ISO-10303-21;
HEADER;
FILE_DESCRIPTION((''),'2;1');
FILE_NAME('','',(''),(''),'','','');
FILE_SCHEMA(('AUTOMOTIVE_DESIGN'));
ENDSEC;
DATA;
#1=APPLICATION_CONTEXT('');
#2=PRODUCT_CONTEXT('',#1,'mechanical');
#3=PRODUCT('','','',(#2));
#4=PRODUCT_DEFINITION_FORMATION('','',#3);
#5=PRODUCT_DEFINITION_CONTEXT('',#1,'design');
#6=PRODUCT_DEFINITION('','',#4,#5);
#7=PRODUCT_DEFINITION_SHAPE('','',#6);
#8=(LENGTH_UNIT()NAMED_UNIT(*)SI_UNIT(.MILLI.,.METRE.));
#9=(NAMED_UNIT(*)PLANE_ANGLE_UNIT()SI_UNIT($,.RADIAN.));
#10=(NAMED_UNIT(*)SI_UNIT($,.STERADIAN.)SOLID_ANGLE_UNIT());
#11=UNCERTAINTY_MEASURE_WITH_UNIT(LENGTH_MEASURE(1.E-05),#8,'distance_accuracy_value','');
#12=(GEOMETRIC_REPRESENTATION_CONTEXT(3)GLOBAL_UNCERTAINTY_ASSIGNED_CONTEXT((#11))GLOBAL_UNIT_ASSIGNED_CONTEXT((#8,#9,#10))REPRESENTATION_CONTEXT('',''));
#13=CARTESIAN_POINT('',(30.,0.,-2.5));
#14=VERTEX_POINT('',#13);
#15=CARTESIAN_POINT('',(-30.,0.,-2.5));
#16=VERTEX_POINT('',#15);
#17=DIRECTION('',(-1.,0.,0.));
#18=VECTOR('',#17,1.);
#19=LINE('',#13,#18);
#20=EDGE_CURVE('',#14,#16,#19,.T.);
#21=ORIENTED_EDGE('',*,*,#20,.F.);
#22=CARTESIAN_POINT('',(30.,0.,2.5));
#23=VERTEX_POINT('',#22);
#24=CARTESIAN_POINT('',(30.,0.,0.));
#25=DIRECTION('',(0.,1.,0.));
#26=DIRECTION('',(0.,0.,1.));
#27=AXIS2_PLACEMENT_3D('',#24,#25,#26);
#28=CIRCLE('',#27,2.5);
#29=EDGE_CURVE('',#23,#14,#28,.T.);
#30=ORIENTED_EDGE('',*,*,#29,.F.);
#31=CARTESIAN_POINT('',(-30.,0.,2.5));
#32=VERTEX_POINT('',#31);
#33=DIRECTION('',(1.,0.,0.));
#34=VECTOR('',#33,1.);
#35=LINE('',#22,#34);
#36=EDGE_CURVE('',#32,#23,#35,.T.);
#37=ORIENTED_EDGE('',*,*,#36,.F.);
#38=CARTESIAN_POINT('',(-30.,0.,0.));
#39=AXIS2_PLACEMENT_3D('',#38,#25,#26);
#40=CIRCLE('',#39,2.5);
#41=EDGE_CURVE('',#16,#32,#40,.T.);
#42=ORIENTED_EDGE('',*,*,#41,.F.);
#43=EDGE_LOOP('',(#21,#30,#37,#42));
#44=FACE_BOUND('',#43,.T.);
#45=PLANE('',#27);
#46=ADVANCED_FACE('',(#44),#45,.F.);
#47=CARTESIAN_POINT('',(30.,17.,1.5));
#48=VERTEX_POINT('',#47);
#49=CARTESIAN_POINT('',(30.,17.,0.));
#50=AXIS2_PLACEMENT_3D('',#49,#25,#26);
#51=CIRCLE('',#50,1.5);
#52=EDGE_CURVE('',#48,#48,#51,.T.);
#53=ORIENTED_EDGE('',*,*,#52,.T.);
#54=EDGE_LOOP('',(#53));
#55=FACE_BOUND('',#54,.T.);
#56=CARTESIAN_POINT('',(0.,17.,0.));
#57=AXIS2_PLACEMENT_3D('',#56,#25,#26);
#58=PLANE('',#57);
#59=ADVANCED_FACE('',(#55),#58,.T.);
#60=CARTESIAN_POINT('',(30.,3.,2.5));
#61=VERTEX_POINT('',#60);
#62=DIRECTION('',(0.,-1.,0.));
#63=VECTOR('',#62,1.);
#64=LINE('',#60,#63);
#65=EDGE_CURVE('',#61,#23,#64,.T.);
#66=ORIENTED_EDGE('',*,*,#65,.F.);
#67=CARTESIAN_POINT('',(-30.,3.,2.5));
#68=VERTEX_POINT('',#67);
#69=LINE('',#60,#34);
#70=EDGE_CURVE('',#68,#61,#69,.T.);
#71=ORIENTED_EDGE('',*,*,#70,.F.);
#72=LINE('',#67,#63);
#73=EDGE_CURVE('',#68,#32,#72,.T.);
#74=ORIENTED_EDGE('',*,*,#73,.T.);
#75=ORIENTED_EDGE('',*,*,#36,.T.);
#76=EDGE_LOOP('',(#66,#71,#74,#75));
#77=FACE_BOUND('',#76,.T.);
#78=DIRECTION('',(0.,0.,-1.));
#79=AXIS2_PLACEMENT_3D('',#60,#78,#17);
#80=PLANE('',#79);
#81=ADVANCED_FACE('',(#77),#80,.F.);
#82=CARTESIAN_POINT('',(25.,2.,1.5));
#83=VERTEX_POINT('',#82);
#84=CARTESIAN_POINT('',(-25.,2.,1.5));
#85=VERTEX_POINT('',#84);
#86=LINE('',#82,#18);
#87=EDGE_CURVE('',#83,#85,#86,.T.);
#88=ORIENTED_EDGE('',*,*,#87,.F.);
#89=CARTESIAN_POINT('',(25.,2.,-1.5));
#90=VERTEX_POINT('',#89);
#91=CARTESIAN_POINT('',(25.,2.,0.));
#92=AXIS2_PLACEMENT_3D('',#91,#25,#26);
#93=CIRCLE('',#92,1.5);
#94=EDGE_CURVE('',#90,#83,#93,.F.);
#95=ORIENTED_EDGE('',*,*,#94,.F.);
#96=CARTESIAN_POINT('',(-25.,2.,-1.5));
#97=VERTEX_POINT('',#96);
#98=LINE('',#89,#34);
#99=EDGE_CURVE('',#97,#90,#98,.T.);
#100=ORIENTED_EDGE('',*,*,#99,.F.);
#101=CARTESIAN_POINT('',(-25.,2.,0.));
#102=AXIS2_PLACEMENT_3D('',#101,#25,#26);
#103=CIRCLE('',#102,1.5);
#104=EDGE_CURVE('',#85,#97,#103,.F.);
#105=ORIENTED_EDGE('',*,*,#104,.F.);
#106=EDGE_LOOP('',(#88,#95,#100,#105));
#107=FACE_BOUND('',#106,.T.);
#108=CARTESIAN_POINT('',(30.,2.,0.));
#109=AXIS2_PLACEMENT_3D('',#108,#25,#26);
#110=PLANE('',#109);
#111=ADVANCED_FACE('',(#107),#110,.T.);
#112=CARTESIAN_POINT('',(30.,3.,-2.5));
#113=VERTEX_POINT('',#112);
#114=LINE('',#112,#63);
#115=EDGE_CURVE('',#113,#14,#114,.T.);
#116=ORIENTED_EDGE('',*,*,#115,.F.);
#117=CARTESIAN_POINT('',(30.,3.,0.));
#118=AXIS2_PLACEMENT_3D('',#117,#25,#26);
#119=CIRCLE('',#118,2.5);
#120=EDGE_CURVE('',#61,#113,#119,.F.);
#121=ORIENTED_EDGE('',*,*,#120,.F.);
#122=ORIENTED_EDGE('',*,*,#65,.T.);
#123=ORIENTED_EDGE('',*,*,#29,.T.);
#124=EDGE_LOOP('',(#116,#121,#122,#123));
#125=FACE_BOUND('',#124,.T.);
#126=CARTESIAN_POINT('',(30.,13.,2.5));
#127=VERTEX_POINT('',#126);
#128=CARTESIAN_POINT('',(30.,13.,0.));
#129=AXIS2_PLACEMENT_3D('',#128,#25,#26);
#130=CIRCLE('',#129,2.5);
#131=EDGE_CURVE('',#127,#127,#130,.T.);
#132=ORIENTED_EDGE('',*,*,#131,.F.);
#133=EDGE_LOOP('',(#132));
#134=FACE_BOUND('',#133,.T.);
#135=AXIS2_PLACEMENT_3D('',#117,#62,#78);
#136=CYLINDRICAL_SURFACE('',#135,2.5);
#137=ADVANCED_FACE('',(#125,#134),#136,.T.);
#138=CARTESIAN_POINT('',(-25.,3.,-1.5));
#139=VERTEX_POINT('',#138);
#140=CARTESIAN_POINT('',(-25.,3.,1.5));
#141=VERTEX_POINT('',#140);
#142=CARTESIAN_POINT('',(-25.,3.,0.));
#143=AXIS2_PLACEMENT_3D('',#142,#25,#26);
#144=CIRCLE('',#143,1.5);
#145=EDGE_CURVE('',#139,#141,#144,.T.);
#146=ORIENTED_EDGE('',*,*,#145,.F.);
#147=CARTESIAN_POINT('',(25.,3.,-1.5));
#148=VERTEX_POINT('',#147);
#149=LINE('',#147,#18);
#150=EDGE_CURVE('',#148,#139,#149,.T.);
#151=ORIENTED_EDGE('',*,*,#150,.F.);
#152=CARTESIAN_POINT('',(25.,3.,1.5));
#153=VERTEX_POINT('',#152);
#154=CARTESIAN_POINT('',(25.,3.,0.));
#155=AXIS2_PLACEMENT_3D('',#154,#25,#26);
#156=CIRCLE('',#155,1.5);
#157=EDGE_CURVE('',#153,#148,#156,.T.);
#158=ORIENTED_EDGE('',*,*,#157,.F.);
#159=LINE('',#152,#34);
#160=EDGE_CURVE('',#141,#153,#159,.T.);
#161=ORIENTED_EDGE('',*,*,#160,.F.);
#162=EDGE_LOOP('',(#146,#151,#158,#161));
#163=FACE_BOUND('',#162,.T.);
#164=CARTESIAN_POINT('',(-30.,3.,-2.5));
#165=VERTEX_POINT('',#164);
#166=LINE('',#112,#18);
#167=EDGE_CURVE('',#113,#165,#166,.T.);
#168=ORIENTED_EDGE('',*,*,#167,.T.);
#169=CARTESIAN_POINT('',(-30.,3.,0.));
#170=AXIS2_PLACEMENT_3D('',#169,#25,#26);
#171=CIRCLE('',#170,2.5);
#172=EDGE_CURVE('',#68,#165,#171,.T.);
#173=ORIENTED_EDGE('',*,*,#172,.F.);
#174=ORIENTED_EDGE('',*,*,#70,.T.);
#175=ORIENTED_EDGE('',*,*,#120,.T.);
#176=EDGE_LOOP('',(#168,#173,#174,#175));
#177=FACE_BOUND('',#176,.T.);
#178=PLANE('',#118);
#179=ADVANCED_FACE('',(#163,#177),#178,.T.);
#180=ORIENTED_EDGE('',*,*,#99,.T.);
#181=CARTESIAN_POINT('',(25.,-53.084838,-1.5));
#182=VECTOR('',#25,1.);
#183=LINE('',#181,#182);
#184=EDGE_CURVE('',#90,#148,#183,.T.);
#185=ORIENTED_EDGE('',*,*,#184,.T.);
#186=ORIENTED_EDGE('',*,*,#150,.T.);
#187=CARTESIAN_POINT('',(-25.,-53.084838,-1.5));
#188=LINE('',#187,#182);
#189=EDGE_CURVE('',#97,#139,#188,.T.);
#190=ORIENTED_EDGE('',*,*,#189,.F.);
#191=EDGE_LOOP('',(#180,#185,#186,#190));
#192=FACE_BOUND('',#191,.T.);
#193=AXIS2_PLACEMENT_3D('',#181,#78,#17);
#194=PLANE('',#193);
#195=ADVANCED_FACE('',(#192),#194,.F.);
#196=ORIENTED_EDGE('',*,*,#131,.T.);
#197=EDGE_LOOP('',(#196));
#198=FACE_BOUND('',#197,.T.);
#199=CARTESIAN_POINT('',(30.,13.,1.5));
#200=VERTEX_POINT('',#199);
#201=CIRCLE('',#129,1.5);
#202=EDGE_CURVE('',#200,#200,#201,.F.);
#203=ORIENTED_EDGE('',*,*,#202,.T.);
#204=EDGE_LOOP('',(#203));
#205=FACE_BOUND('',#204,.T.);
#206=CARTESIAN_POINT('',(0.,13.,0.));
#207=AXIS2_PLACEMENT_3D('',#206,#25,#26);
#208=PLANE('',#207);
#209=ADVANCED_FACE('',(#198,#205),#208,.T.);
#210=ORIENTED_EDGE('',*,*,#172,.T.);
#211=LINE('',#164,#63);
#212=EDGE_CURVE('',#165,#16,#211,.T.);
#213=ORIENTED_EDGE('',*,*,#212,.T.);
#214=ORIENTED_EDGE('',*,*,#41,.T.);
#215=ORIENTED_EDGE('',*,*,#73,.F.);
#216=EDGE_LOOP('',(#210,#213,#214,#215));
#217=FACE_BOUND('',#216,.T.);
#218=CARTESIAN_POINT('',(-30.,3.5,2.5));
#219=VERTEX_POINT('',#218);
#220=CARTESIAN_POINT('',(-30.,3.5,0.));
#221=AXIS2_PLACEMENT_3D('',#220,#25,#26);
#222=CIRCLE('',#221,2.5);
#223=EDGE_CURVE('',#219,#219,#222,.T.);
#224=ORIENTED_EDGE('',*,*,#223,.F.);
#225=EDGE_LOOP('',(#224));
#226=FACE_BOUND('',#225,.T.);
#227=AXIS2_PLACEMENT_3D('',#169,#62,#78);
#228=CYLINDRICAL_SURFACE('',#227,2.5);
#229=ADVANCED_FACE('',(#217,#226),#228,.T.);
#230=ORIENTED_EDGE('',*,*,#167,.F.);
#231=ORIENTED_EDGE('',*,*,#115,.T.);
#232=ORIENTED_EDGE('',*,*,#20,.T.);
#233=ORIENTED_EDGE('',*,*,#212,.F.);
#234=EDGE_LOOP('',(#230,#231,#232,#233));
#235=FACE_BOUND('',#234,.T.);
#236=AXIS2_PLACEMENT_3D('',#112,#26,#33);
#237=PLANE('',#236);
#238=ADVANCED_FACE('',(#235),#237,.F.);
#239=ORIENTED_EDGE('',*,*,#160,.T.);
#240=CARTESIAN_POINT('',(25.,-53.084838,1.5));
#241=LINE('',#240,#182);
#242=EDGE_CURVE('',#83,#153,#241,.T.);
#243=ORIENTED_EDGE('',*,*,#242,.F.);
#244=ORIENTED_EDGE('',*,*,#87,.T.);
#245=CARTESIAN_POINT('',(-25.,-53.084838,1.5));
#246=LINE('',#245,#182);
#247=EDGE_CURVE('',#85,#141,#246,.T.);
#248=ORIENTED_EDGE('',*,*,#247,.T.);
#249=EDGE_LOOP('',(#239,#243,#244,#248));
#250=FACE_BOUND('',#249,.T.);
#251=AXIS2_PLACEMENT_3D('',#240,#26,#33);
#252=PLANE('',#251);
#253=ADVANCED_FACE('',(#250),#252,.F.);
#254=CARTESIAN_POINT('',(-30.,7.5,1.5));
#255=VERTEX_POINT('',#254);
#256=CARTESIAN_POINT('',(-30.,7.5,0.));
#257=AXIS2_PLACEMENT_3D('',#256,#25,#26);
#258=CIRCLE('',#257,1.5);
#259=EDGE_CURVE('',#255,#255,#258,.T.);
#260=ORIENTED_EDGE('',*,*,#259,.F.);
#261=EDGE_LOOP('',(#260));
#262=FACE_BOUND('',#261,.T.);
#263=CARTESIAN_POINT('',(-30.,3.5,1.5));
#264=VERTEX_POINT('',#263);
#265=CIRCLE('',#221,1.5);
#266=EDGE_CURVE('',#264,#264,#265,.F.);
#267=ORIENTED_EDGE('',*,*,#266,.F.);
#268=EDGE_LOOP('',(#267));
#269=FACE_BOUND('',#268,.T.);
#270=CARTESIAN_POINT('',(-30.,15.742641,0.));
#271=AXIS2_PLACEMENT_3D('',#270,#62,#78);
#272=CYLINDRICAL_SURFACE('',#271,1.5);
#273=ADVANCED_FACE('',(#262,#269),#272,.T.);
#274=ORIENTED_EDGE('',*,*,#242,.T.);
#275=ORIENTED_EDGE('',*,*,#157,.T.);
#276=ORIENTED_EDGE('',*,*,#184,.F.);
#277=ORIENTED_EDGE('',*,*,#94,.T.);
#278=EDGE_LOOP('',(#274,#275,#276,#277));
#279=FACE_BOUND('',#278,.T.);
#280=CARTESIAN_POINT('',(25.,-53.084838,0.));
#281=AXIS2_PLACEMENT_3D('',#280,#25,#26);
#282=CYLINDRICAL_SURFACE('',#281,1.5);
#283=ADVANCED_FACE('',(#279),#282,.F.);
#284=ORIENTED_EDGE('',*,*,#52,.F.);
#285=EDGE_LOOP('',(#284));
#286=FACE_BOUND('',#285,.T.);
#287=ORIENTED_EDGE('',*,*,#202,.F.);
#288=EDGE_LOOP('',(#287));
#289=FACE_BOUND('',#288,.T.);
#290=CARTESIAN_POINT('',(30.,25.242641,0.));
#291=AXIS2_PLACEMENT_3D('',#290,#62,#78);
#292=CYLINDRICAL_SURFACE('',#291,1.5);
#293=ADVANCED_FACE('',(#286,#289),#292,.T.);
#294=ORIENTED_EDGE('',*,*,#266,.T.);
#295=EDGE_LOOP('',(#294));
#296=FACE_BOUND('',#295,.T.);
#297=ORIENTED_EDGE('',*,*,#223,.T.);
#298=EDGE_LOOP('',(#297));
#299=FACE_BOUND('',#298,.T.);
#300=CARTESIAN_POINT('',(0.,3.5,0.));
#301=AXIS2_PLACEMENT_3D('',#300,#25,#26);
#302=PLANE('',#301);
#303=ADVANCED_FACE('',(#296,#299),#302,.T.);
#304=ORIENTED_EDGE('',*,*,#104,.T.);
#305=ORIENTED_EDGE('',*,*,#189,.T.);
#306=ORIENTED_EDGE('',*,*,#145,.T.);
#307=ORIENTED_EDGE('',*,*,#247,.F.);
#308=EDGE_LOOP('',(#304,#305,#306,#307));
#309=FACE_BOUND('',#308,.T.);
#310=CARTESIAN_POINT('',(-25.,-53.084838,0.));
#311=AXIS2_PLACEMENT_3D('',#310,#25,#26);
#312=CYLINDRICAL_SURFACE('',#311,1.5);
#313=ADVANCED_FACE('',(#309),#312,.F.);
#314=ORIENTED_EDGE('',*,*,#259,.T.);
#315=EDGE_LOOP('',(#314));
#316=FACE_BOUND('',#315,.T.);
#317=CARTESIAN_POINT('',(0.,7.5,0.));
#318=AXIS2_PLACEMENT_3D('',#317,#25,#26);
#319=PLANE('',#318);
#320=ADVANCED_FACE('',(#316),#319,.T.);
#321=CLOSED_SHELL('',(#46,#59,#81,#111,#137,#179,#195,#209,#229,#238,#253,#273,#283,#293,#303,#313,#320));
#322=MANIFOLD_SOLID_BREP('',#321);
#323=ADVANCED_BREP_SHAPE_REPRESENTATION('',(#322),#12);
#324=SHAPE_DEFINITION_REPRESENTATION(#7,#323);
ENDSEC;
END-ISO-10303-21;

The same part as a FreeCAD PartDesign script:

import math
import FreeCAD as App
import Part
import Sketcher

V = App.Vector

doc = App.newDocument("Part")
body = doc.addObject("PartDesign::Body", "Body")

# Sketch on XZ plane
sketch1 = body.newObject("Sketcher::SketchObject", "Sketch")
sketch1.AttachmentSupport = (doc.getObject("XZ_Plane"), [""])
sketch1.MapMode = "FlatFace"
sketch1.addGeometry(Part.LineSegment(V(-30, 2.5, 0), V(30, 2.5, 0)), False)
sketch1.addGeometry(Part.ArcOfCircle(Part.Circle(V(30, 0, 0), V(0, 0, 1), 2.5), math.radians(-90), math.radians(90)), False)
sketch1.addGeometry(Part.LineSegment(V(30, -2.5, 0), V(-30, -2.5, 0)), False)
sketch1.addGeometry(Part.ArcOfCircle(Part.Circle(V(-30, 0, 0), V(0, 0, 1), 2.5), math.radians(90), math.radians(270)), False)
sketch1.addConstraint(Sketcher.Constraint("Tangent", 0, 2, 1, 2))
sketch1.addConstraint(Sketcher.Constraint("Tangent", 1, 1, 2, 1))
sketch1.addConstraint(Sketcher.Constraint("Tangent", 2, 2, 3, 2))
sketch1.addConstraint(Sketcher.Constraint("Tangent", 3, 1, 0, 1))
sketch1.addConstraint(Sketcher.Constraint("Horizontal", 0))
sketch1.addConstraint(Sketcher.Constraint("Horizontal", 2))
sketch1.addConstraint(Sketcher.Constraint("Symmetric", 1, 3, 3, 3, -1, 1))
sketch1.addConstraint(Sketcher.Constraint("Radius", 1, 2.5))
sketch1.addConstraint(Sketcher.Constraint("DistanceX", 0, 1, 0, 2, 60.0))
pad1 = body.newObject("PartDesign::Pad", "Pad")
pad1.Profile = sketch1
pad1.Length = 3
pad1.Reversed = True

# Sketch on XZ plane
sketch2 = body.newObject("Sketcher::SketchObject", "Sketch001")
sketch2.AttachmentSupport = (doc.getObject("XZ_Plane"), [""])
sketch2.MapMode = "FlatFace"
sketch2.AttachmentOffset = App.Placement(V(0, 0, -3), App.Rotation())
sketch2.addGeometry(Part.ArcOfCircle(Part.Circle(V(-30, 0, 0), V(0, 0, 1), 2.5), math.radians(0), math.radians(90)), False)
sketch2.addGeometry(Part.ArcOfCircle(Part.Circle(V(-30, 0, 0), V(0, 0, 1), 2.5), math.radians(-90), math.radians(0)), False)
sketch2.addGeometry(Part.ArcOfCircle(Part.Circle(V(-30, 0, 0), V(0, 0, 1), 2.5), math.radians(90), math.radians(270)), False)
sketch2.addConstraint(Sketcher.Constraint("Tangent", 0, 1, 1, 2))
sketch2.addConstraint(Sketcher.Constraint("Tangent", 1, 1, 2, 2))
sketch2.addConstraint(Sketcher.Constraint("Tangent", 2, 1, 0, 2))
sketch2.addConstraint(Sketcher.Constraint("Symmetric", 1, 1, 2, 1, -1))
sketch2.addConstraint(Sketcher.Constraint("PointOnObject", 0, 1, -1))
sketch2.addConstraint(Sketcher.Constraint("Vertical", 2, 3, 1, 1))
sketch2.addConstraint(Sketcher.Constraint("Radius", 0, 2.5))
sketch2.addConstraint(Sketcher.Constraint("DistanceX", 0, 3, -1, 1, 30.0))
pad2 = body.newObject("PartDesign::Pad", "Pad001")
pad2.Profile = sketch2
pad2.Length = 0.5
pad2.Reversed = True

# Sketch on XZ plane
sketch3 = body.newObject("Sketcher::SketchObject", "Sketch002")
sketch3.AttachmentSupport = (doc.getObject("XZ_Plane"), [""])
sketch3.MapMode = "FlatFace"
sketch3.AttachmentOffset = App.Placement(V(0, 0, -3), App.Rotation())
sketch3.addGeometry(Part.Circle(V(-30, 0, 0), V(0, 0, 1), 1.5), False)
sketch3.addConstraint(Sketcher.Constraint("PointOnObject", 0, 3, -1))
sketch3.addConstraint(Sketcher.Constraint("Diameter", 0, 3.0))
sketch3.addConstraint(Sketcher.Constraint("DistanceX", 0, 3, -1, 1, 30.0))
pad3 = body.newObject("PartDesign::Pad", "Pad002")
pad3.Profile = sketch3
pad3.Length = 4.5
pad3.Reversed = True

# Sketch on XZ plane
sketch4 = body.newObject("Sketcher::SketchObject", "Sketch003")
sketch4.AttachmentSupport = (doc.getObject("XZ_Plane"), [""])
sketch4.MapMode = "FlatFace"
sketch4.AttachmentOffset = App.Placement(V(0, 0, -3), App.Rotation())
sketch4.addGeometry(Part.ArcOfCircle(Part.Circle(V(30, 0, 0), V(0, 0, 1), 2.5), math.radians(0), math.radians(90)), False)
sketch4.addGeometry(Part.ArcOfCircle(Part.Circle(V(30, 0, 0), V(0, 0, 1), 2.5), math.radians(-90), math.radians(0)), False)
sketch4.addGeometry(Part.ArcOfCircle(Part.Circle(V(30, 0, 0), V(0, 0, 1), 2.5), math.radians(90), math.radians(270)), False)
sketch4.addConstraint(Sketcher.Constraint("Tangent", 0, 1, 1, 2))
sketch4.addConstraint(Sketcher.Constraint("Tangent", 1, 1, 2, 2))
sketch4.addConstraint(Sketcher.Constraint("Tangent", 2, 1, 0, 2))
sketch4.addConstraint(Sketcher.Constraint("Symmetric", 1, 1, 2, 1, -1))
sketch4.addConstraint(Sketcher.Constraint("PointOnObject", 0, 1, -1))
sketch4.addConstraint(Sketcher.Constraint("Vertical", 2, 3, 1, 1))
sketch4.addConstraint(Sketcher.Constraint("Radius", 0, 2.5))
sketch4.addConstraint(Sketcher.Constraint("DistanceX", -1, 1, 0, 3, 30.0))
pad4 = body.newObject("PartDesign::Pad", "Pad003")
pad4.Profile = sketch4
pad4.Length = 10
pad4.Reversed = True

# Sketch on XZ plane
sketch5 = body.newObject("Sketcher::SketchObject", "Sketch004")
sketch5.AttachmentSupport = (doc.getObject("XZ_Plane"), [""])
sketch5.MapMode = "FlatFace"
sketch5.AttachmentOffset = App.Placement(V(0, 0, -3), App.Rotation())
sketch5.addGeometry(Part.Circle(V(30, 0, 0), V(0, 0, 1), 1.5), False)
sketch5.addConstraint(Sketcher.Constraint("PointOnObject", 0, 3, -1))
sketch5.addConstraint(Sketcher.Constraint("Diameter", 0, 3.0))
sketch5.addConstraint(Sketcher.Constraint("DistanceX", -1, 1, 0, 3, 30.0))
pad5 = body.newObject("PartDesign::Pad", "Pad004")
pad5.Profile = sketch5
pad5.Length = 14
pad5.Reversed = True

# Sketch on XZ plane
sketch6 = body.newObject("Sketcher::SketchObject", "Sketch005")
sketch6.AttachmentSupport = (doc.getObject("XZ_Plane"), [""])
sketch6.MapMode = "FlatFace"
sketch6.AttachmentOffset = App.Placement(V(0, 0, -3), App.Rotation())
sketch6.addGeometry(Part.LineSegment(V(-25, 1.5, 0), V(25, 1.5, 0)), False)
sketch6.addGeometry(Part.ArcOfCircle(Part.Circle(V(25, 0, 0), V(0, 0, 1), 1.5), math.radians(-90), math.radians(90)), False)
sketch6.addGeometry(Part.LineSegment(V(25, -1.5, 0), V(-25, -1.5, 0)), False)
sketch6.addGeometry(Part.ArcOfCircle(Part.Circle(V(-25, 0, 0), V(0, 0, 1), 1.5), math.radians(90), math.radians(270)), False)
sketch6.addConstraint(Sketcher.Constraint("Tangent", 0, 2, 1, 2))
sketch6.addConstraint(Sketcher.Constraint("Tangent", 1, 1, 2, 1))
sketch6.addConstraint(Sketcher.Constraint("Tangent", 2, 2, 3, 2))
sketch6.addConstraint(Sketcher.Constraint("Tangent", 3, 1, 0, 1))
sketch6.addConstraint(Sketcher.Constraint("Horizontal", 0))
sketch6.addConstraint(Sketcher.Constraint("Horizontal", 2))
sketch6.addConstraint(Sketcher.Constraint("Symmetric", 1, 3, 3, 3, -1, 1))
sketch6.addConstraint(Sketcher.Constraint("Radius", 1, 1.5))
sketch6.addConstraint(Sketcher.Constraint("DistanceX", 0, 1, 0, 2, 50.0))
pocket1 = body.newObject("PartDesign::Pocket", "Pocket")
pocket1.Profile = sketch6
pocket1.Length = 1
pocket1.Reversed = True

doc.recompute()
